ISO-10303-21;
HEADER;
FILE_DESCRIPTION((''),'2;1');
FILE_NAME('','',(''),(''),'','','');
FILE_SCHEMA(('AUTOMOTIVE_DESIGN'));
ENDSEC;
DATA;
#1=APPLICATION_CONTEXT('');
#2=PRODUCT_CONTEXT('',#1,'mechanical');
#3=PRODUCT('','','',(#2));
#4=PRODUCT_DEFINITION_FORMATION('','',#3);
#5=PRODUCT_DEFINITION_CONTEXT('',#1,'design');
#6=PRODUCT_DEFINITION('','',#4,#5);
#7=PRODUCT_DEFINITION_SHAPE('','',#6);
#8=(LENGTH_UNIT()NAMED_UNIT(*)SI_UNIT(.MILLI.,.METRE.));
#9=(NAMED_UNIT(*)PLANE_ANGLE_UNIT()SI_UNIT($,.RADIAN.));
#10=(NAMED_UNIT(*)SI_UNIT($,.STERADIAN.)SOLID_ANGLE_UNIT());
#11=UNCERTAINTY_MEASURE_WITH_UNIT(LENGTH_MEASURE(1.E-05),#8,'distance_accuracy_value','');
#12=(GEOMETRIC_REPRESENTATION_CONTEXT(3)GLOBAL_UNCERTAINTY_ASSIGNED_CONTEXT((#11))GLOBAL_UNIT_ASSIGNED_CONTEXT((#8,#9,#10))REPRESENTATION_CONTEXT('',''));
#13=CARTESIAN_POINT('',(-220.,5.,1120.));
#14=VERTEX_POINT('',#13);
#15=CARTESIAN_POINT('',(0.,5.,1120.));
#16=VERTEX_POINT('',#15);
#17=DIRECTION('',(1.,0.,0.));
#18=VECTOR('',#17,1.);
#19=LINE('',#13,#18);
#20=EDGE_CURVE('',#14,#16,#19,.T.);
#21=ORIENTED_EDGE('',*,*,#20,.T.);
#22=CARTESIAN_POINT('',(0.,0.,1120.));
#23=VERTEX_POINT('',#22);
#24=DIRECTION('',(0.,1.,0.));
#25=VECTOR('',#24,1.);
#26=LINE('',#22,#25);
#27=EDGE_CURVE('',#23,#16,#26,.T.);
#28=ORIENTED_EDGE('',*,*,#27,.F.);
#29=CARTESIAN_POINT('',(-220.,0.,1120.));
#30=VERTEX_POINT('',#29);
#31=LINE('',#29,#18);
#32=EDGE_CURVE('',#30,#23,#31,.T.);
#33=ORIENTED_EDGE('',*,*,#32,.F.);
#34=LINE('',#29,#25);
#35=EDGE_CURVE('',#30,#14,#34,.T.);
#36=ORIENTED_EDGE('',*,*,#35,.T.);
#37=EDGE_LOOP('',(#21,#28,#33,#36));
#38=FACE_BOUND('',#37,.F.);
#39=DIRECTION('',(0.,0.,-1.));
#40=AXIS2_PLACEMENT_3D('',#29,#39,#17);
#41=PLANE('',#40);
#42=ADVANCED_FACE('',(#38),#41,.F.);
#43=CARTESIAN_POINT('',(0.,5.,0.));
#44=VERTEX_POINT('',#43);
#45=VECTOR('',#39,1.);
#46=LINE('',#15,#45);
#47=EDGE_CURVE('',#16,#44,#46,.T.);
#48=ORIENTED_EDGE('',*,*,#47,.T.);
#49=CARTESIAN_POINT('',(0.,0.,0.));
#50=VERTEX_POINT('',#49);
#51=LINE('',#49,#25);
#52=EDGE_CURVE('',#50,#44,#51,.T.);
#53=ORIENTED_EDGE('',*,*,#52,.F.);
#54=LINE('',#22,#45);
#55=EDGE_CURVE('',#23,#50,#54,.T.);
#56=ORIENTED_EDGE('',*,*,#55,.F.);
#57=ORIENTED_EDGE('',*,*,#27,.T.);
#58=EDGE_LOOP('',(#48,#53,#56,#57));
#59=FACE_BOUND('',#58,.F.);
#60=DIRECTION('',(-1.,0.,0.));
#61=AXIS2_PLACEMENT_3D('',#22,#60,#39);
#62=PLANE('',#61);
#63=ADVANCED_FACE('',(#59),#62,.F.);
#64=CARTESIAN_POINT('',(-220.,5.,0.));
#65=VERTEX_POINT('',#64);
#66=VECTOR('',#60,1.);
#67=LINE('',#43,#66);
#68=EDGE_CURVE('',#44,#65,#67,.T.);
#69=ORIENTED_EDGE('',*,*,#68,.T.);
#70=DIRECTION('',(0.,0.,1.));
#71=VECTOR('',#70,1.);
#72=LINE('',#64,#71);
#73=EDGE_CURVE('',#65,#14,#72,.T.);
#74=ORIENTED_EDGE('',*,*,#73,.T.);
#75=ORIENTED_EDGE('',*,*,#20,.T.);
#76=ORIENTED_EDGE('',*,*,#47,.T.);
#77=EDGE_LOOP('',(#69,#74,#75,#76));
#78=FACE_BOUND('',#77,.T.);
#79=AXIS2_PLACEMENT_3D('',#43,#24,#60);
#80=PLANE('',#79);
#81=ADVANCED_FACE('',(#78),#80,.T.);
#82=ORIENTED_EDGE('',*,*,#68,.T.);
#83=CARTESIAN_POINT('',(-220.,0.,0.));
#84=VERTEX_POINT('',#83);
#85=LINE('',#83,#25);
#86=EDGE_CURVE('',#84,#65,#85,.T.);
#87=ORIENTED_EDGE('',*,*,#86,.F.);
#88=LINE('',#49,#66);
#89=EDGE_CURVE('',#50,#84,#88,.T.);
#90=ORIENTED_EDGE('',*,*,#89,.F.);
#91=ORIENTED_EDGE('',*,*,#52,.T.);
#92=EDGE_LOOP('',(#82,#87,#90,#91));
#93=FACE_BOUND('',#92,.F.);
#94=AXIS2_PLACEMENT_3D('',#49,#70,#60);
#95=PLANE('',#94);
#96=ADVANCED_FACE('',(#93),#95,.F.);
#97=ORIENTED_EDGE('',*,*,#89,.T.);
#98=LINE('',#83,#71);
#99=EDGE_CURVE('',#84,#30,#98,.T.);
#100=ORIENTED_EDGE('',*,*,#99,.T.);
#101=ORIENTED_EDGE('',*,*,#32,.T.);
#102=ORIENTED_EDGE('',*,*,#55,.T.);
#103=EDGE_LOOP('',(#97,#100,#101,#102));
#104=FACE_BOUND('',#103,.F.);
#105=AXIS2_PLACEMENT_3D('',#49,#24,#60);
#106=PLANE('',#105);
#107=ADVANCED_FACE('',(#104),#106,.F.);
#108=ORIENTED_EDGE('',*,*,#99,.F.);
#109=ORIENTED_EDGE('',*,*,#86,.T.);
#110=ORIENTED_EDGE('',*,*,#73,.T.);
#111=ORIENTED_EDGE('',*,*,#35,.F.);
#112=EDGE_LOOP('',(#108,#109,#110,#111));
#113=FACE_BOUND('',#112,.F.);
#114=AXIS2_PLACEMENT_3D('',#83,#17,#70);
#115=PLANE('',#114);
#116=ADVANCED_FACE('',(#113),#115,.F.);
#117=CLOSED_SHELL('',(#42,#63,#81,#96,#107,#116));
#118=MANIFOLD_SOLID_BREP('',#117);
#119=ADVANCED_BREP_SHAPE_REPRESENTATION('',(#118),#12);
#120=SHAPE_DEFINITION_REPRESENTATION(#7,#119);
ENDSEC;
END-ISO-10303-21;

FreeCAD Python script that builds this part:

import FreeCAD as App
import Part
import Sketcher
Q = App.Units.Quantity


def add_polygon(sketch, points):
    """Adds a closed chain of lines whose ends are joined by coincident constraints."""
    first, n = sketch.GeometryCount, len(points)
    for a, b in zip(points, points[1:] + points[:1]):
        sketch.addGeometry(Part.LineSegment(App.Vector(*a, 0), App.Vector(*b, 0)), False)
    for i in range(n):
        sketch.addConstraint(Sketcher.Constraint("Coincident", first + i, 2, first + (i + 1) % n, 1))

doc = App.newDocument("Part")
body = doc.addObject("PartDesign::Body", "Body")

# Sketch on XZ plane
sketch1 = doc.addObject("Sketcher::SketchObject", "Sketch")
body.addObject(sketch1)
sketch1.AttachmentSupport = (doc.XZ_Plane, [""])
sketch1.MapMode = "FlatFace"
add_polygon(sketch1, [(0, 1120), (0, 0), (-220, 0), (-220, 1120)])  # lines 0-3
sketch1.addConstraint(Sketcher.Constraint("Vertical", 0))
sketch1.addConstraint(Sketcher.Constraint("Horizontal", 1))
sketch1.addConstraint(Sketcher.Constraint("Vertical", 2))
sketch1.addConstraint(Sketcher.Constraint("Horizontal", 3))
sketch1.addConstraint(Sketcher.Constraint("Coincident", 0, 2, -1, 1))
sketch1.addConstraint(Sketcher.Constraint("DistanceX", 1, 2, 1, 1, Q("220 mm")))
sketch1.addConstraint(Sketcher.Constraint("DistanceY", 0, 2, 0, 1, Q("1120 mm")))
pad1 = doc.addObject("PartDesign::Pad", "Pad")
body.addObject(pad1)
pad1.Profile = sketch1
pad1.Length = 5
pad1.Reversed = True

doc.recompute()
